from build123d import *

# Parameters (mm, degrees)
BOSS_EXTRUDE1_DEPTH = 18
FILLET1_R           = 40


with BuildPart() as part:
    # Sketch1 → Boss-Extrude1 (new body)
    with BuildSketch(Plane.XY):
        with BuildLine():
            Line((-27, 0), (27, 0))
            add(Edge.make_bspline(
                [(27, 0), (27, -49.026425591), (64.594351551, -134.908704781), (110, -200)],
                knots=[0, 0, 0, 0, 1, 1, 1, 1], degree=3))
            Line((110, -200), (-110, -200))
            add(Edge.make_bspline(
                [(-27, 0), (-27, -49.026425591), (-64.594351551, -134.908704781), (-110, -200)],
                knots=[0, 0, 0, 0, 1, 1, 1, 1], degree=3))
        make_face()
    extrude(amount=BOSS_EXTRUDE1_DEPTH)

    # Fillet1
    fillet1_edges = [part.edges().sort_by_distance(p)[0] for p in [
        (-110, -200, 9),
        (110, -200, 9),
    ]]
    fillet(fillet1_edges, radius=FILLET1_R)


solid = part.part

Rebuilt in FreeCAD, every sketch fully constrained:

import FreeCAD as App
import Part
import Sketcher
from FreeCAD import Vector


def edges_at(feature, points):
    """Names of the edges that pass closest to the given points."""
    edges = feature.Shape.Edges
    near = lambda p: min(range(len(edges)), key=lambda i: edges[i].distToShape(Part.Vertex(*p))[0])
    return sorted({f"Edge{near(p) + 1}" for p in points})

doc = App.newDocument("Part")
body = doc.addObject("PartDesign::Body", "Body")

sketch1 = doc.addObject("Sketcher::SketchObject", "Sketch")
body.addObject(sketch1)
sketch1.AttachmentSupport = (doc.XY_Plane, [""])
sketch1.MapMode = "FlatFace"
sketch1.addGeometry([
    Part.LineSegment(Vector(27, 0, 0), Vector(-27, 0, 0)),
    Part.BSplineCurve([Vector(-27, 0, 0), Vector(-27, -49.026426, 0), Vector(-64.594352, -134.908705, 0), Vector(-110, -200, 0)], [4, 4], [0, 1], False, 3, [1, 1, 1, 1], False),
    Part.LineSegment(Vector(-110, -200, 0), Vector(110, -200, 0)),
    Part.BSplineCurve([Vector(27, 0, 0), Vector(27, -49.026426, 0), Vector(64.594352, -134.908705, 0), Vector(110, -200, 0)], [4, 4], [0, 1], False, 3, [1, 1, 1, 1], False),
], False)
sketch1.addConstraint([
    Sketcher.Constraint("Block", 1),
    Sketcher.Constraint("Block", 3),
    Sketcher.Constraint("Coincident", 0, 2, 1, 1),
    Sketcher.Constraint("Coincident", 1, 2, 2, 1),
    Sketcher.Constraint("Coincident", 2, 2, 3, 2),
    Sketcher.Constraint("Coincident", 3, 1, 0, 1),
])
pad1 = doc.addObject("PartDesign::Pad", "Pad")
body.addObject(pad1)
pad1.Profile = sketch1
pad1.Length = 18
doc.recompute()

fillet = doc.addObject("PartDesign::Fillet", "Fillet")
body.addObject(fillet)
fillet.Base = (pad1, edges_at(pad1, [(-110, -200, 9), (110, -200, 9)]))
fillet.Radius = 40

doc.recompute()
